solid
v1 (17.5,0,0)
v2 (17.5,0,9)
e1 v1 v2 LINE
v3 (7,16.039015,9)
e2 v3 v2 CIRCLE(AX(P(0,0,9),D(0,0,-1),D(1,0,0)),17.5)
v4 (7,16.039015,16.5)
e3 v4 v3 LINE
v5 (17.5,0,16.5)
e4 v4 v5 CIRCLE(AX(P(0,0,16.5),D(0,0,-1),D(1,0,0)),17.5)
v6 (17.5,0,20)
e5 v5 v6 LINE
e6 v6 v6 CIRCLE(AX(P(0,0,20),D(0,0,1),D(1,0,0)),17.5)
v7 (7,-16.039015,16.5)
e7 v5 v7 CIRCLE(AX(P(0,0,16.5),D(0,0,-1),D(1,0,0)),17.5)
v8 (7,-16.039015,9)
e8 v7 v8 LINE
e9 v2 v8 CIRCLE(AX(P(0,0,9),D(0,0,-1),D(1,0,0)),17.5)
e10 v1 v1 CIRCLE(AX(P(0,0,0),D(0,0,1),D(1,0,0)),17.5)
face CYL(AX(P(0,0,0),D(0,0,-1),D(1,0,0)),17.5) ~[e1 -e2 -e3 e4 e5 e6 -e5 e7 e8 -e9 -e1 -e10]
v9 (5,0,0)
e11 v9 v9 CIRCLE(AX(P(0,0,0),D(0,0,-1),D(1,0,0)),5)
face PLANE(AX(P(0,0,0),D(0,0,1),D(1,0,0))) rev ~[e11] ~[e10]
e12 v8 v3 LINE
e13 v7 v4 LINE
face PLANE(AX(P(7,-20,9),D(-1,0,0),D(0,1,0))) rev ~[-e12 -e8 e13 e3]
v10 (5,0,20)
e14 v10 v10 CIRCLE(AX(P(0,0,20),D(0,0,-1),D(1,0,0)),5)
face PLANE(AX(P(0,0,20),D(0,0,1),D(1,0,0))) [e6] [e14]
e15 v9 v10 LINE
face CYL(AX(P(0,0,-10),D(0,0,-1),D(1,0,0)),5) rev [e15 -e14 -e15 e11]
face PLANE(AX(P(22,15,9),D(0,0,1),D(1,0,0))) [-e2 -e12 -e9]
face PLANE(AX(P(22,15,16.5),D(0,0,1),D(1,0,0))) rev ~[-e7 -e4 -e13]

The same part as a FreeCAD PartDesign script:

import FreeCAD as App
import Part
import Sketcher
Q = App.Units.Quantity

doc = App.newDocument("Part")
params = doc.addObject("Spreadsheet::Sheet", "Params")
for row, (alias, value) in enumerate([
    ("sketch1_width", "30 mm"),
    ("sketch1_height", "70 mm"),
    ("pad1_length", "7.5 mm"),
    ("sketch2_diameter", "10 mm"),
    ("pad2_length", "40 mm"),
    ("sketch3_diameter", "35 mm"),
    ("pad3_length", "20 mm"),
], start=1):
    params.set(f"A{row}", alias)
    params.set(f"B{row}", "=" + value)
    params.setAlias(f"B{row}", alias)

body = doc.addObject("PartDesign::Body", "Body")

sketch1 = body.newObject("Sketcher::SketchObject", "Sketch")
sketch1.AttachmentSupport = (doc.getObject("XY_Plane"), [""])
sketch1.MapMode = "FlatFace"
sketch1.AttachmentOffset = App.Placement(App.Vector(0, 0, 9), App.Rotation())
sketch1.addGeometry([
    Part.LineSegment(App.Vector(7, 50, 0), App.Vector(7, -20, 0)),
    Part.LineSegment(App.Vector(7, -20, 0), App.Vector(37, -20, 0)),
    Part.LineSegment(App.Vector(37, -20, 0), App.Vector(37, 50, 0)),
    Part.LineSegment(App.Vector(37, 50, 0), App.Vector(7, 50, 0)),
], False)
sketch1.addConstraint([
    Sketcher.Constraint("Coincident", 0, 2, 1, 1),
    Sketcher.Constraint("Coincident", 1, 2, 2, 1),
    Sketcher.Constraint("Coincident", 2, 2, 3, 1),
    Sketcher.Constraint("Coincident", 3, 2, 0, 1),
    Sketcher.Constraint("Vertical", 0),
    Sketcher.Constraint("Horizontal", 1),
    Sketcher.Constraint("Vertical", 2),
    Sketcher.Constraint("Horizontal", 3),
    Sketcher.Constraint("DistanceX", 1, 1, 1, 2, Q("30 mm")),
    Sketcher.Constraint("DistanceY", 0, 2, 0, 1, Q("70 mm")),
    Sketcher.Constraint("DistanceX", -1, 1, 0, 2, Q("7 mm")),
    Sketcher.Constraint("DistanceY", 0, 2, -1, 1, Q("20 mm")),
])
sketch1.setExpression("Constraints[8]", "Params.sketch1_width")
sketch1.setExpression("Constraints[9]", "Params.sketch1_height")
pad1 = body.newObject("PartDesign::Pad", "Pad")
pad1.Profile = sketch1
pad1.setExpression("Length", "Params.pad1_length")
body2 = doc.addObject("PartDesign::Body", "Body001")

sketch2 = body2.newObject("Sketcher::SketchObject", "Sketch001")
sketch2.AttachmentSupport = (doc.getObject("XY_Plane001"), [""])
sketch2.MapMode = "FlatFace"
sketch2.AttachmentOffset = App.Placement(App.Vector(0, 0, -10), App.Rotation())
sketch2.addGeometry(Part.Circle(App.Vector(0, 0, 0), App.Vector(0, 0, 1), 5), False)
sketch2.addConstraint([
    Sketcher.Constraint("Coincident", 0, 3, -1, 1),
    Sketcher.Constraint("Diameter", 0, Q("10 mm")),
])
sketch2.setExpression("Constraints[1]", "Params.sketch2_diameter")
pad2 = body2.newObject("PartDesign::Pad", "Pad001")
pad2.Profile = sketch2
pad2.setExpression("Length", "Params.pad2_length")
body3 = doc.addObject("PartDesign::Body", "Body002")

sketch3 = body3.newObject("Sketcher::SketchObject", "Sketch002")
sketch3.AttachmentSupport = (doc.getObject("XY_Plane002"), [""])
sketch3.MapMode = "FlatFace"
sketch3.addGeometry(Part.Circle(App.Vector(0, 0, 0), App.Vector(0, 0, 1), 18), False)
sketch3.addConstraint([
    Sketcher.Constraint("Coincident", 0, 3, -1, 1),
    Sketcher.Constraint("Diameter", 0, Q("35 mm")),
])
sketch3.setExpression("Constraints[1]", "Params.sketch3_diameter")
pad3 = body3.newObject("PartDesign::Pad", "Pad002")
pad3.Profile = sketch3
pad3.setExpression("Length", "Params.pad3_length")
doc.recompute()

boolean = body3.newObject("PartDesign::Boolean", "Boolean")
boolean.Type = "Cut"
boolean.addObjects([body2])
doc.recompute()

boolean2 = body3.newObject("PartDesign::Boolean", "Boolean001")
boolean2.Type = "Cut"
boolean2.addObjects([body])

doc.recompute()
